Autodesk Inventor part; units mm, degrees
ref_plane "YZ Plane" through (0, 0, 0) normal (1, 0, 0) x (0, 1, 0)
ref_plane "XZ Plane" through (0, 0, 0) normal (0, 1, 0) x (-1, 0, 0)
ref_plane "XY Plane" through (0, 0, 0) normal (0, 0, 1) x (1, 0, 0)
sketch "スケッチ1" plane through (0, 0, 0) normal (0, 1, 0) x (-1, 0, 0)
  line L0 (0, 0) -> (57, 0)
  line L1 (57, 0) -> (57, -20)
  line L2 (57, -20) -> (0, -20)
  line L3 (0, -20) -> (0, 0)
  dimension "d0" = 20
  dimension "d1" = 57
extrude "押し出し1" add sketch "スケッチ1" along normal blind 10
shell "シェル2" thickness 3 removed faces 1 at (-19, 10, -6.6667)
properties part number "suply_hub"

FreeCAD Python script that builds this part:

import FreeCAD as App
import Part
import Sketcher
from FreeCAD import Vector
Q = App.Units.Quantity


def faces_at(feature, points):
    """Names of the faces that lie closest to the given points."""
    faces = feature.Shape.Faces
    near = lambda p: min(range(len(faces)), key=lambda i: faces[i].distToShape(Part.Vertex(*p))[0])
    return sorted({f"Face{near(p) + 1}" for p in points})


def add_polygon(sketch, points):
    """Adds a closed chain of lines whose ends are joined by coincident constraints."""
    first, n = sketch.GeometryCount, len(points)
    for a, b in zip(points, points[1:] + points[:1]):
        sketch.addGeometry(Part.LineSegment(App.Vector(*a, 0), App.Vector(*b, 0)), False)
    for i in range(n):
        sketch.addConstraint(Sketcher.Constraint("Coincident", first + i, 2, first + (i + 1) % n, 1))

doc = App.newDocument("Part")
params = doc.addObject("Spreadsheet::Sheet", "Params")
for row, (alias, value) in enumerate([
    ("sketch1_width", "57 mm"),
    ("sketch1_height", "20 mm"),
    ("pad1_length", "10 mm"),
    ("thickness_wall", "3 mm"),
], start=1):
    params.set(f"A{row}", alias)
    params.set(f"B{row}", "=" + value)
    params.setAlias(f"B{row}", alias)

body = doc.addObject("PartDesign::Body", "Body")

sketch1 = body.newObject("Sketcher::SketchObject", "Sketch")
sketch1.AttachmentSupport = (doc.getObject("XZ_Plane"), [""])
sketch1.MapMode = "FlatFace"
add_polygon(sketch1, [(-57, 0), (0, 0), (0, -20), (-57, -20)])
sketch1.addConstraint(Sketcher.Constraint("Horizontal", 0))
sketch1.addConstraint(Sketcher.Constraint("Vertical", 1))
sketch1.addConstraint(Sketcher.Constraint("Horizontal", 2))
sketch1.addConstraint(Sketcher.Constraint("Vertical", 3))
sketch1.addConstraint(Sketcher.Constraint("Coincident", 0, 2, -1, 1))
sketch1.addConstraint(Sketcher.Constraint("DistanceX", 0, 1, 0, 2, Q("57 mm")))
sketch1.addConstraint(Sketcher.Constraint("DistanceY", 1, 2, 1, 1, Q("20 mm")))
sketch1.setExpression("Constraints[9]", "Params.sketch1_width")
sketch1.setExpression("Constraints[10]", "Params.sketch1_height")
pad1 = body.newObject("PartDesign::Pad", "Pad")
pad1.Profile = sketch1
pad1.setExpression("Length", "Params.pad1_length")
pad1.Reversed = True
doc.recompute()

thickness = body.newObject("PartDesign::Thickness", "Thickness")
thickness.Base = (pad1, faces_at(pad1, [(-19, 10, -6.667)]))
thickness.setExpression("Value", "Params.thickness_wall")
thickness.Reversed = True
thickness.Join = "Intersection"

doc.recompute()
